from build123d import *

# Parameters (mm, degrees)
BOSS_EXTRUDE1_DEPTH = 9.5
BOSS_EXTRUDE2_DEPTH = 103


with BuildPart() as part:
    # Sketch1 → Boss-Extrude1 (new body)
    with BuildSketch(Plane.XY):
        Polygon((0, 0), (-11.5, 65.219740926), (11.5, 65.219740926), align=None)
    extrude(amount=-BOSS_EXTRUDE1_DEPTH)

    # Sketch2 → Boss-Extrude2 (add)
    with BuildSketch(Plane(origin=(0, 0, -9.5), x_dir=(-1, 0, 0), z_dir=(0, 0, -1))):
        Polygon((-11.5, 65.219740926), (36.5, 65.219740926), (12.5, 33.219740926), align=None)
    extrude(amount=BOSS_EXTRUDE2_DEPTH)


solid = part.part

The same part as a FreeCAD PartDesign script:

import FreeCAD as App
import Part
import Sketcher
Q = App.Units.Quantity


def add_polygon(sketch, points):
    """Adds a closed chain of lines whose ends are joined by coincident constraints."""
    first, n = sketch.GeometryCount, len(points)
    for a, b in zip(points, points[1:] + points[:1]):
        sketch.addGeometry(Part.LineSegment(App.Vector(*a, 0), App.Vector(*b, 0)), False)
    for i in range(n):
        sketch.addConstraint(Sketcher.Constraint("Coincident", first + i, 2, first + (i + 1) % n, 1))

doc = App.newDocument("Part")
params = doc.addObject("Spreadsheet::Sheet", "Params")
for row, (alias, value) in enumerate([
    ("sketch1_width", "23 mm"),
    ("pad1_length", "9.5 mm"),
    ("sketch2_width", "48 mm"),
    ("sketch2_length", "40 mm"),
    ("pad2_length", "103 mm"),
], start=1):
    params.set(f"A{row}", alias)
    params.set(f"B{row}", "=" + value)
    params.setAlias(f"B{row}", alias)

body = doc.addObject("PartDesign::Body", "Body")

# Sketch on XY plane
sketch1 = body.newObject("Sketcher::SketchObject", "Sketch")
sketch1.AttachmentSupport = (doc.getObject("XY_Plane"), [""])
sketch1.MapMode = "FlatFace"
add_polygon(sketch1, [(-12, 65), (0, 0), (12, 65)])  # lines 0-2
sketch1.addConstraint([
    Sketcher.Constraint("Horizontal", 2),
    Sketcher.Constraint("Coincident", 0, 2, -1, 1),
    Sketcher.Constraint("Equal", 0, 1),
    Sketcher.Constraint("DistanceX", 2, 2, 2, 1, Q("23 mm")),
    Sketcher.Constraint("Angle", 0, Q("-80 deg")),
])
sketch1.setExpression("Constraints[6]", "Params.sketch1_width")
pad1 = body.newObject("PartDesign::Pad", "Pad")
pad1.Profile = sketch1
pad1.setExpression("Length", "Params.pad1_length")
pad1.Reversed = True

# Sketch on XY plane
sketch2 = body.newObject("Sketcher::SketchObject", "Sketch001")
sketch2.AttachmentSupport = (doc.getObject("XY_Plane"), [""])
sketch2.MapMode = "FlatFace"
sketch2.AttachmentOffset = App.Placement(App.Vector(0, 0, -9.5), App.Rotation())
add_polygon(sketch2, [(-36, 65), (12, 65), (-12, 33)])  # lines 0-2
sketch2.addConstraint([
    Sketcher.Constraint("Horizontal", 0),
    Sketcher.Constraint("Equal", 1, 2),
    Sketcher.Constraint("DistanceX", 0, 1, 0, 2, Q("48 mm")),
    Sketcher.Constraint("Distance", 1, Q("40 mm")),
    Sketcher.Constraint("DistanceX", -1, 1, 0, 2, Q("11.5 mm")),
    Sketcher.Constraint("DistanceY", -1, 1, 0, 2, Q("65.219741 mm")),
])
sketch2.setExpression("Constraints[5]", "Params.sketch2_width")
sketch2.setExpression("Constraints[6]", "Params.sketch2_length")
pad2 = body.newObject("PartDesign::Pad", "Pad001")
pad2.Profile = sketch2
pad2.setExpression("Length", "Params.pad2_length")
pad2.Reversed = True

doc.recompute()
